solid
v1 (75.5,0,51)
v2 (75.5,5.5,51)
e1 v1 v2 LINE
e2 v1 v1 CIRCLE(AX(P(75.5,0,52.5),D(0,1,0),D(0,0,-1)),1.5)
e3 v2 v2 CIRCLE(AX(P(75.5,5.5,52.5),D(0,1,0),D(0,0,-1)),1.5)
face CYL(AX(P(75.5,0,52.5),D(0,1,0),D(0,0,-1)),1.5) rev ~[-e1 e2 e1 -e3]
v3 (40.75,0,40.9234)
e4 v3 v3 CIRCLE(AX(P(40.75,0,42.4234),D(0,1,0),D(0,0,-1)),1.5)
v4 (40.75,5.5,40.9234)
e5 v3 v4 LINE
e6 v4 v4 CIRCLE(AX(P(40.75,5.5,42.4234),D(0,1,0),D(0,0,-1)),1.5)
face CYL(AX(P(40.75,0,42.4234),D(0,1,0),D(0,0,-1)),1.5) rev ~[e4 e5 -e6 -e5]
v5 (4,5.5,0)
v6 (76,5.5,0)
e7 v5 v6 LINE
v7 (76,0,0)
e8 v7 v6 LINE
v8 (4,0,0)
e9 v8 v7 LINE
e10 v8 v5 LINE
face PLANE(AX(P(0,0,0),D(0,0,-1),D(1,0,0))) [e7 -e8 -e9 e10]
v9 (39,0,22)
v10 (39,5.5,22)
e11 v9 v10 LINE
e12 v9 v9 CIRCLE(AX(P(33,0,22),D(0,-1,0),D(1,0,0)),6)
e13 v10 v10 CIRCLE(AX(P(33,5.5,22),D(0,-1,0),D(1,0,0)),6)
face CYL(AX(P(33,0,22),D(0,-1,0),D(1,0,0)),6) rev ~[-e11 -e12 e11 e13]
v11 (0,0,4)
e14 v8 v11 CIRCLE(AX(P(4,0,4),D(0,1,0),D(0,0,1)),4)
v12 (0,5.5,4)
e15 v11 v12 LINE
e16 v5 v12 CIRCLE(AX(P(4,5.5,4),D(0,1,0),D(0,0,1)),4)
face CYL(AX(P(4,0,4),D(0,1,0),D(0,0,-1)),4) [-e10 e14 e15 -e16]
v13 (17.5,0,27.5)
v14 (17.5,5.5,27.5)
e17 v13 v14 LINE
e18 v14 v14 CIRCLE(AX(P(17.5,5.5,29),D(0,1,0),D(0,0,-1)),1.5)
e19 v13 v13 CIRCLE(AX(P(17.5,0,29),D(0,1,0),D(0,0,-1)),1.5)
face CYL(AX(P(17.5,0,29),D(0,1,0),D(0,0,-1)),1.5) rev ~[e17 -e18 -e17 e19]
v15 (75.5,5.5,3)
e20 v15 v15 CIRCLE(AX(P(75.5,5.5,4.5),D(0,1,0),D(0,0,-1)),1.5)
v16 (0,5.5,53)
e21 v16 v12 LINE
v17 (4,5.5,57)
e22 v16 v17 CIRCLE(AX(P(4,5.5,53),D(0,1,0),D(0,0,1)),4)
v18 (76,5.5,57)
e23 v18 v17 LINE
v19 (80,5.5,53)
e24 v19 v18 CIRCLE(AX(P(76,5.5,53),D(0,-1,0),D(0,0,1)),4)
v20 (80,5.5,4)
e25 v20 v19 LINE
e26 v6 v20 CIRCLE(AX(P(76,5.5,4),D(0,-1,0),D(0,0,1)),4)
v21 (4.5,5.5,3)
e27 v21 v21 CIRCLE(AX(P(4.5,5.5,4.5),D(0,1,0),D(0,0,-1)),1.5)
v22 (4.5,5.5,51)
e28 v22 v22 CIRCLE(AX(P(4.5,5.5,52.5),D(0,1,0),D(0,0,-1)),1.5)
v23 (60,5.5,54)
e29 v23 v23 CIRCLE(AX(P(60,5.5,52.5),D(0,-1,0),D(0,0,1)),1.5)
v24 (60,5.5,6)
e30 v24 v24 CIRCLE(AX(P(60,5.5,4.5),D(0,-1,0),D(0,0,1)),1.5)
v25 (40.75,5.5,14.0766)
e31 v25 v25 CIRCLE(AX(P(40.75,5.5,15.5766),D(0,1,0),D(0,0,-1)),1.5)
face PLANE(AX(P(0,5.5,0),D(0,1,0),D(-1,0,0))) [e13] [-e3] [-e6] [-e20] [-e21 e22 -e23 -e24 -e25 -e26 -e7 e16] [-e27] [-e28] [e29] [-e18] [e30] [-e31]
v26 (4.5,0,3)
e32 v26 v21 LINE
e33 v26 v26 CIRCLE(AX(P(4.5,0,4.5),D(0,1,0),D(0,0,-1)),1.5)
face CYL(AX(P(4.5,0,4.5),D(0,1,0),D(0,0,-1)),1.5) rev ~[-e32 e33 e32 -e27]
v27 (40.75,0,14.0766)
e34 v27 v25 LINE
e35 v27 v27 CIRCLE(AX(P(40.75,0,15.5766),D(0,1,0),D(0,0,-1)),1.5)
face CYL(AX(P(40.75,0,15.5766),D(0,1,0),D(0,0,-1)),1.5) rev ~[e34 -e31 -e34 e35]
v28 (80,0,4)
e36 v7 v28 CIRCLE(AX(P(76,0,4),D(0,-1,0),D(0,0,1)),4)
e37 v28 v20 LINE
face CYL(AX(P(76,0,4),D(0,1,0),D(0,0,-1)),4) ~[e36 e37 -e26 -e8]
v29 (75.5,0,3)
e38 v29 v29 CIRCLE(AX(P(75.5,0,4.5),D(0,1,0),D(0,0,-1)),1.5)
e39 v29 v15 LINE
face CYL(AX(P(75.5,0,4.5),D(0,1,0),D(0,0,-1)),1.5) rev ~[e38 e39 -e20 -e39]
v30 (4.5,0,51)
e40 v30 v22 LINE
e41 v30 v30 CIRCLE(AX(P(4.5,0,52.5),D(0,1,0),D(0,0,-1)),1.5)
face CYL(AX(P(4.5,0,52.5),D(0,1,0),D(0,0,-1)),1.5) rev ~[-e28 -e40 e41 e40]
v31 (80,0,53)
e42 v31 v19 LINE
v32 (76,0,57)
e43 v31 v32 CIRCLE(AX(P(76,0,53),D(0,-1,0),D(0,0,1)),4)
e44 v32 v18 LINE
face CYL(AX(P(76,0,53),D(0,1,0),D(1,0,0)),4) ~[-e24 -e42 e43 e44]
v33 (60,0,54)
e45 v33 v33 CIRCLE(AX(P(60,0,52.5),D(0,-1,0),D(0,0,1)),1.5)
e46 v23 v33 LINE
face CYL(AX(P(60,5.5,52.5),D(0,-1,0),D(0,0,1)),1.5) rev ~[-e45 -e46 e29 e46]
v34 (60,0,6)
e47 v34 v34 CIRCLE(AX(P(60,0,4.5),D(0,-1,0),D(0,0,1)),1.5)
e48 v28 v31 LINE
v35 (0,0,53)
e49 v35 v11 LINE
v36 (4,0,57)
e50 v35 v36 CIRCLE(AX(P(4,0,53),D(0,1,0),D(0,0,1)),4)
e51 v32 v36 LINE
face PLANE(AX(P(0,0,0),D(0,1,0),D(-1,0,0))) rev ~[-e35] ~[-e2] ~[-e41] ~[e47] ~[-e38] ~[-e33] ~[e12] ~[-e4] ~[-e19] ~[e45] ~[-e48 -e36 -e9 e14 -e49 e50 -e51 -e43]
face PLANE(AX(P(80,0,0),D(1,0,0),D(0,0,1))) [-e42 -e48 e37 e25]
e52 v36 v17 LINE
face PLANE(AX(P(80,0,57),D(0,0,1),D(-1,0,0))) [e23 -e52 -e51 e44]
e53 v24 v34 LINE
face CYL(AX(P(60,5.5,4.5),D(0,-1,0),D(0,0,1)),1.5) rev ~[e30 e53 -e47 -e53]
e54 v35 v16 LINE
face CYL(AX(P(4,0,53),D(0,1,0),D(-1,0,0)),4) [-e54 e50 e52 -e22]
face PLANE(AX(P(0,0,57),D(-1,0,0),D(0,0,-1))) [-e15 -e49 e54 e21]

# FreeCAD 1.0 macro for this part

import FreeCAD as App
import Part
import Sketcher
from FreeCAD import Vector
Q = App.Units.Quantity


def edges_at(feature, points):
    """Names of the edges that pass closest to the given points."""
    edges = feature.Shape.Edges
    near = lambda p: min(range(len(edges)), key=lambda i: edges[i].distToShape(Part.Vertex(*p))[0])
    return sorted({f"Edge{near(p) + 1}" for p in points})

doc = App.newDocument("Part")
body = doc.addObject("PartDesign::Body", "Body")

sketch1 = body.newObject("Sketcher::SketchObject", "Sketch")
sketch1.AttachmentSupport = (doc.getObject("XZ_Plane"), [""])
sketch1.MapMode = "FlatFace"
sketch1.addGeometry(Part.LineSegment(Vector(80, 0, 0), Vector(0, 0, 0)), False)
sketch1.addGeometry(Part.LineSegment(Vector(0, 0, 0), Vector(0, 57, 0)), False)
sketch1.addGeometry(Part.LineSegment(Vector(0, 57, 0), Vector(80, 57, 0)), False)
sketch1.addGeometry(Part.LineSegment(Vector(80, 57, 0), Vector(80, 0, 0)), False)
sketch1.addConstraint(Sketcher.Constraint("Coincident", 0, 2, 1, 1))
sketch1.addConstraint(Sketcher.Constraint("Coincident", 1, 2, 2, 1))
sketch1.addConstraint(Sketcher.Constraint("Coincident", 2, 2, 3, 1))
sketch1.addConstraint(Sketcher.Constraint("Coincident", 3, 2, 0, 1))
sketch1.addConstraint(Sketcher.Constraint("Horizontal", 0))
sketch1.addConstraint(Sketcher.Constraint("Vertical", 1))
sketch1.addConstraint(Sketcher.Constraint("Horizontal", 2))
sketch1.addConstraint(Sketcher.Constraint("Vertical", 3))
sketch1.addConstraint(Sketcher.Constraint("Coincident", 0, 2, -1, 1))
sketch1.addConstraint(Sketcher.Constraint("DistanceX", 0, 2, 0, 1, Q("80 mm")))
sketch1.addConstraint(Sketcher.Constraint("DistanceY", 1, 1, 1, 2, Q("57 mm")))
pad1 = body.newObject("PartDesign::Pad", "Pad")
pad1.Profile = sketch1
pad1.Length = 5.5
pad1.Reversed = True

sketch2 = body.newObject("Sketcher::SketchObject", "Sketch001")
sketch2.AttachmentSupport = (doc.getObject("XZ_Plane"), [""])
sketch2.MapMode = "FlatFace"
sketch2.addGeometry(Part.Circle(Vector(75.5, 4.5, 0), Vector(0, 0, 1), 1.5), False)
sketch2.addGeometry(Part.Circle(Vector(4.5, 4.5, 0), Vector(0, 0, 1), 1.5), False)
sketch2.addGeometry(Part.Circle(Vector(4.5, 52.5, 0), Vector(0, 0, 1), 1.5), False)
sketch2.addGeometry(Part.Circle(Vector(75.5, 52.5, 0), Vector(0, 0, 1), 1.5), False)
sketch2.addConstraint(Sketcher.Constraint("Equal", 0, 1))
sketch2.addConstraint(Sketcher.Constraint("Equal", 1, 2))
sketch2.addConstraint(Sketcher.Constraint("Equal", 2, 3))
sketch2.addConstraint(Sketcher.Constraint("Horizontal", 0, 3, 1, 3))
sketch2.addConstraint(Sketcher.Constraint("Horizontal", 2, 3, 3, 3))
sketch2.addConstraint(Sketcher.Constraint("Vertical", 1, 3, 2, 3))
sketch2.addConstraint(Sketcher.Constraint("Vertical", 0, 3, 3, 3))
sketch2.addConstraint(Sketcher.Constraint("Diameter", 0, Q("3 mm")))
sketch2.addConstraint(Sketcher.Constraint("DistanceX", 1, 3, 0, 3, Q("71 mm")))
sketch2.addConstraint(Sketcher.Constraint("DistanceY", 1, 3, 2, 3, Q("48 mm")))
sketch2.addConstraint(Sketcher.Constraint("DistanceX", -1, 1, 0, 3, Q("75.5 mm")))
sketch2.addConstraint(Sketcher.Constraint("DistanceY", -1, 1, 0, 3, Q("4.5 mm")))
doc.recompute()
hole = body.newObject("PartDesign::Hole", "Hole")
hole.Profile = sketch2
hole.ThreadType = "None"
hole.Diameter = 3
hole.DepthType = "ThroughAll"
doc.recompute()

fillet = body.newObject("PartDesign::Fillet", "Fillet")
fillet.Base = (hole, edges_at(hole, [
    (80, 2.75, 0),
    (0, 2.75, 0),
    (80, 2.75, 57),
    (0, 2.75, 57),
]))
fillet.Radius = 4

sketch3 = body.newObject("Sketcher::SketchObject", "Sketch002")
sketch3.AttachmentSupport = (doc.getObject("XZ_Plane"), [""])
sketch3.MapMode = "FlatFace"
sketch3.addGeometry(Part.Circle(Vector(40.8, 15.6, 0), Vector(0, 0, 1), 1.5), False)
sketch3.addGeometry(Part.Circle(Vector(40.8, 42.4, 0), Vector(0, 0, 1), 1.5), False)
sketch3.addGeometry(Part.Circle(Vector(17.5, 29, 0), Vector(0, 0, 1), 1.5), False)
sketch3.addConstraint(Sketcher.Constraint("Equal", 0, 1))
sketch3.addConstraint(Sketcher.Constraint("Equal", 1, 2))
sketch3.addConstraint(Sketcher.Constraint("Vertical", 0, 3, 1, 3))
sketch3.addConstraint(Sketcher.Constraint("Diameter", 0, Q("3 mm")))
sketch3.addConstraint(Sketcher.Constraint("DistanceY", -1, 1, 2, 3, Q("29 mm")))
sketch3.addConstraint(Sketcher.Constraint("DistanceX", -1, 1, 2, 3, Q("17.5 mm")))
sketch3.addConstraint(Sketcher.Constraint("DistanceX", -1, 1, 0, 3, Q("40.75 mm")))
sketch3.addConstraint(Sketcher.Constraint("DistanceY", -1, 1, 0, 3, Q("15.5766 mm")))
sketch3.addConstraint(Sketcher.Constraint("DistanceY", -1, 1, 1, 3, Q("42.4234 mm")))
doc.recompute()
hole2 = body.newObject("PartDesign::Hole", "Hole001")
hole2.Profile = sketch3
hole2.ThreadType = "None"
hole2.Diameter = 3
hole2.DepthType = "ThroughAll"

sketch4 = body.newObject("Sketcher::SketchObject", "Sketch003")
sketch4.AttachmentSupport = (doc.getObject("XZ_Plane"), [""])
sketch4.MapMode = "FlatFace"
sketch4.addGeometry(Part.Circle(Vector(33, 22, 0), Vector(0, 0, 1), 6), False)
sketch4.addConstraint(Sketcher.Constraint("Diameter", 0, Q("12 mm")))
sketch4.addConstraint(Sketcher.Constraint("DistanceX", -1, 1, 0, 3, Q("33 mm")))
sketch4.addConstraint(Sketcher.Constraint("DistanceY", -1, 1, 0, 3, Q("22 mm")))
pocket1 = body.newObject("PartDesign::Pocket", "Pocket")
pocket1.Profile = sketch4
pocket1.Type = "ThroughAll"

sketch5 = body.newObject("Sketcher::SketchObject", "Sketch004")
sketch5.AttachmentSupport = (doc.getObject("XZ_Plane"), [""])
sketch5.MapMode = "FlatFace"
sketch5.AttachmentOffset = App.Placement(Vector(0, 0, -5.5), App.Rotation())
sketch5.addGeometry(Part.Circle(Vector(60, 52.5, 0), Vector(0, 0, 1), 1.5), False)
sketch5.addGeometry(Part.Circle(Vector(60, 4.5, 0), Vector(0, 0, 1), 1.5), False)
sketch5.addConstraint(Sketcher.Constraint("Equal", 0, 1))
sketch5.addConstraint(Sketcher.Constraint("Vertical", 0, 3, 1, 3))
sketch5.addConstraint(Sketcher.Constraint("Diameter", 0, Q("3 mm")))
sketch5.addConstraint(Sketcher.Constraint("DistanceX", -1, 1, 0, 3, Q("60 mm")))
sketch5.addConstraint(Sketcher.Constraint("DistanceY", 1, 3, 0, 3, Q("48 mm")))
sketch5.addConstraint(Sketcher.Constraint("DistanceY", -1, 1, 0, 3, Q("52.5 mm")))
doc.recompute()
hole3 = body.newObject("PartDesign::Hole", "Hole002")
hole3.Profile = sketch5
hole3.ThreadType = "None"
hole3.Diameter = 3
hole3.DepthType = "ThroughAll"
hole3.Reversed = True

doc.recompute()
